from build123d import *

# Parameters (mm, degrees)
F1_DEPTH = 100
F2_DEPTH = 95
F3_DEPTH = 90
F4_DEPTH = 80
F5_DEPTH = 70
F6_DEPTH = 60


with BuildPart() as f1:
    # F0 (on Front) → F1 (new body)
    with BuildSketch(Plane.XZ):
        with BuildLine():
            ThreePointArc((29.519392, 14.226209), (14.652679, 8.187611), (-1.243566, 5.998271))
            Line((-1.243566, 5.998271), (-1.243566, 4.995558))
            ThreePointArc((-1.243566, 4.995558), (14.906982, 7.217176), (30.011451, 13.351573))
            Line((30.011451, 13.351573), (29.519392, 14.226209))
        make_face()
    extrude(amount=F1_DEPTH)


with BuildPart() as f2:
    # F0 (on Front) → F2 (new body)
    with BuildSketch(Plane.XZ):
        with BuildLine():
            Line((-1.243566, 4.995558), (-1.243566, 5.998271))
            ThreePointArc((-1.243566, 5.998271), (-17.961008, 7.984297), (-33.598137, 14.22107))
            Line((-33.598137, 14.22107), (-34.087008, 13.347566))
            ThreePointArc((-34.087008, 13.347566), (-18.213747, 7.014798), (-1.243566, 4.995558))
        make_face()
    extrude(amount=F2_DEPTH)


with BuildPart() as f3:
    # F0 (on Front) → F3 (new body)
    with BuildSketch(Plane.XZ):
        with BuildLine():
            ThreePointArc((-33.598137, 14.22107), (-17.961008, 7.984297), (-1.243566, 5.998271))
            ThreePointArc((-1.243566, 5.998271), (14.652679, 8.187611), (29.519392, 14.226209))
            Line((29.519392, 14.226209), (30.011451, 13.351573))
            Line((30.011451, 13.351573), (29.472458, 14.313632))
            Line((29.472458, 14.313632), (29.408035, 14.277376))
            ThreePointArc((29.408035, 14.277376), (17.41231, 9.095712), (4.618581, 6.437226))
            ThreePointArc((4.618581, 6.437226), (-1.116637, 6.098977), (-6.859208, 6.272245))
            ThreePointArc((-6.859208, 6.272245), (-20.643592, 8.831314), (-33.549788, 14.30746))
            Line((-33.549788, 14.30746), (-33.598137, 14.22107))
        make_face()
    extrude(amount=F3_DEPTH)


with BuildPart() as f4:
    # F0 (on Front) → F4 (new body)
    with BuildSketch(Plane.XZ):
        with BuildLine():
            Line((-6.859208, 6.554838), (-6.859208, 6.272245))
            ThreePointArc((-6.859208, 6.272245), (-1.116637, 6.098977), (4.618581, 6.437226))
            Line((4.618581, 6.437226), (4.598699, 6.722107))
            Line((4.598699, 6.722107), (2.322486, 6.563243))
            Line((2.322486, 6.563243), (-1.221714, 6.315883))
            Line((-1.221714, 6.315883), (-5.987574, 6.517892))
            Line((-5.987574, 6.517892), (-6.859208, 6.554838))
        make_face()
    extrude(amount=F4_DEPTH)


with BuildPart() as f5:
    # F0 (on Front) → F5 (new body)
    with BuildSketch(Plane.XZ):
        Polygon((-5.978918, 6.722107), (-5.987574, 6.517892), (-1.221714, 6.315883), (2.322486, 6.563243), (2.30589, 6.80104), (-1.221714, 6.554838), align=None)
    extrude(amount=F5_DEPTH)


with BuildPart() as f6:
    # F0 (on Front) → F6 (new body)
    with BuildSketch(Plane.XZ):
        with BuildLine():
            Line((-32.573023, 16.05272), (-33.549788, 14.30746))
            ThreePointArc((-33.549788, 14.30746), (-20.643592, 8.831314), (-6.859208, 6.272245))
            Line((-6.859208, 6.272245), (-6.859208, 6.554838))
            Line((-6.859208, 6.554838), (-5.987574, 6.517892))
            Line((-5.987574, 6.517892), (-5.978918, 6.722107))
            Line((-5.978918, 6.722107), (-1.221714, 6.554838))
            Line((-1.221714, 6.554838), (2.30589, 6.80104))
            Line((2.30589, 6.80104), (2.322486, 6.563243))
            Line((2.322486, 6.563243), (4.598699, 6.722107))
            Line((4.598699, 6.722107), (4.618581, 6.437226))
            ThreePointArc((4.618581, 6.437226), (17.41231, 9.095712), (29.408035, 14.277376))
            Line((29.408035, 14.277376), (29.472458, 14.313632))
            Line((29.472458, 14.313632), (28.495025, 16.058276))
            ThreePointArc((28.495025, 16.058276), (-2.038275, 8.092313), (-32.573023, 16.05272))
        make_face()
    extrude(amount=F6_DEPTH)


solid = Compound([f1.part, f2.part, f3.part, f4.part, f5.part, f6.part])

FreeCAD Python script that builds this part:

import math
import FreeCAD as App
import Part
import Sketcher

doc = App.newDocument("Part")
params = doc.addObject("Spreadsheet::Sheet", "Params")
for row, (alias, value) in enumerate([
    ("pad1_length", "100 mm"),
    ("pad2_length", "95 mm"),
    ("pad3_length", "90 mm"),
    ("pad4_length", "80 mm"),
    ("pad5_length", "70 mm"),
    ("sketch6_length", "2.000001 mm"),
    ("pad6_length", "60 mm"),
], start=1):
    params.set(f"A{row}", alias)
    params.set(f"B{row}", "=" + value)
    params.setAlias(f"B{row}", alias)

body = doc.addObject("PartDesign::Body", "Body")

# Sketch on XZ plane
sketch1 = body.newObject("Sketcher::SketchObject", "Sketch")
sketch1.AttachmentSupport = (doc.getObject("XZ_Plane"), [""])
sketch1.MapMode = "FlatFace"
sketch1.addGeometry([
    Part.ArcOfCircle(Part.Circle(App.Vector(-2, 70.6, 0), App.Vector(0, 0, 1), 64.6), math.radians(-89), math.radians(-61)),
    Part.LineSegment(App.Vector(-1.2, 6, 0), App.Vector(-1.2, 5, 0)),
    Part.ArcOfCircle(Part.Circle(App.Vector(-2, 70.6, 0), App.Vector(0, 0, 1), 65.6), math.radians(-89), math.radians(-61)),
    Part.LineSegment(App.Vector(30, 13.4, 0), App.Vector(29.5, 14.2, 0)),
], False)
sketch1.addConstraint([
    Sketcher.Constraint("Coincident", 0, 1, 1, 1),
    Sketcher.Constraint("Coincident", 1, 2, 2, 1),
    Sketcher.Constraint("Coincident", 2, 2, 3, 1),
    Sketcher.Constraint("Coincident", 3, 2, 0, 2),
    Sketcher.Constraint("Vertical", 1),
    Sketcher.Constraint("Radius", 0, 64.620379),
    Sketcher.Constraint("Radius", 2, 65.620412),
    Sketcher.Constraint("DistanceY", 0, 1, 2, 2, 7.353302),
    Sketcher.Constraint("Distance", 3, 1.003549),
    Sketcher.Constraint("DistanceY", 1, 2, 1, 1, 1.002713),
    Sketcher.Constraint("DistanceX", 2, 3, -1, 1, 2.041361),
    Sketcher.Constraint("DistanceY", -1, 1, 2, 3, 70.61112),
    Sketcher.Constraint("DistanceY", -1, 1, 0, 1, 5.998271),
    Sketcher.Constraint("DistanceX", -1, 1, 3, 2, 29.519392),
])
pad1 = body.newObject("PartDesign::Pad", "Pad")
pad1.Profile = sketch1
pad1.setExpression("Length", "Params.pad1_length")
body2 = doc.addObject("PartDesign::Body", "Body001")

# Sketch on XZ plane
sketch2 = body2.newObject("Sketcher::SketchObject", "Sketch001")
sketch2.AttachmentSupport = (doc.getObject("XZ_Plane001"), [""])
sketch2.MapMode = "FlatFace"
sketch2.addGeometry([
    Part.LineSegment(App.Vector(-1.2, 5, 0), App.Vector(-1.2, 6, 0)),
    Part.ArcOfCircle(Part.Circle(App.Vector(-2, 70.6, 0), App.Vector(0, 0, 1), 64.6), math.radians(-119), math.radians(-89)),
    Part.LineSegment(App.Vector(-33.6, 14.2, 0), App.Vector(-34.1, 13.3, 0)),
    Part.ArcOfCircle(Part.Circle(App.Vector(-2, 70.6, 0), App.Vector(0, 0, 1), 65.6), math.radians(-119), math.radians(-89)),
], False)
sketch2.addConstraint([
    Sketcher.Constraint("Coincident", 0, 2, 1, 2),
    Sketcher.Constraint("Coincident", 1, 1, 2, 1),
    Sketcher.Constraint("Coincident", 2, 2, 3, 1),
    Sketcher.Constraint("Coincident", 3, 2, 0, 1),
    Sketcher.Constraint("Vertical", 0),
    Sketcher.Constraint("Radius", 1, 64.620391),
    Sketcher.Constraint("Radius", 3, 65.620419),
    Sketcher.Constraint("Distance", 2, 1.001002),
    Sketcher.Constraint("DistanceX", 1, 3, 0, 2, 0.800401),
    Sketcher.Constraint("DistanceY", 0, 2, 1, 1, 8.222799),
    Sketcher.Constraint("DistanceY", 0, 1, 0, 2, 1.002713),
    Sketcher.Constraint("DistanceY", -1, 1, 0, 2, 5.998271),
    Sketcher.Constraint("DistanceX", 2, 2, 1, 1, 0.488871),
    Sketcher.Constraint("DistanceX", 1, 3, -1, 1, 2.043967),
])
pad2 = body2.newObject("PartDesign::Pad", "Pad001")
pad2.Profile = sketch2
pad2.setExpression("Length", "Params.pad2_length")
body3 = doc.addObject("PartDesign::Body", "Body002")

# Sketch on XZ plane
sketch3 = body3.newObject("Sketcher::SketchObject", "Sketch002")
sketch3.AttachmentSupport = (doc.getObject("XZ_Plane002"), [""])
sketch3.MapMode = "FlatFace"
sketch3.addGeometry([
    Part.ArcOfCircle(Part.Circle(App.Vector(-2.04, 70.61, 0), App.Vector(0, 0, 1), 64.62), math.radians(-119), math.radians(-89)),  # 0
    Part.ArcOfCircle(Part.Circle(App.Vector(-2.04, 70.61, 0), App.Vector(0, 0, 1), 64.62), math.radians(-89), math.radians(-61)),  # 1
    Part.LineSegment(App.Vector(29.52, 14.23, 0), App.Vector(30.01, 13.35, 0)),  # 2
    Part.LineSegment(App.Vector(30.01, 13.35, 0), App.Vector(29.47, 14.31, 0)),  # 3
    Part.LineSegment(App.Vector(29.47, 14.31, 0), App.Vector(29.41, 14.28, 0)),  # 4
    Part.ArcOfCircle(Part.Circle(App.Vector(-2.04, 70.61, 0), App.Vector(0, 0, 1), 64.52), math.radians(-84), math.radians(-61)),  # 5
    Part.ArcOfCircle(Part.Circle(App.Vector(-2.04, 70.61, 0), App.Vector(0, 0, 1), 64.52), math.radians(-94.28), math.radians(-84.07)),  # 6
    Part.ArcOfCircle(Part.Circle(App.Vector(-2.04, 70.61, 0), App.Vector(0, 0, 1), 64.52), math.radians(-119), math.radians(-94)),  # 7
    Part.LineSegment(App.Vector(-33.55, 14.31, 0), App.Vector(-33.6, 14.22, 0)),  # 8
], False)
sketch3.addConstraint([
    Sketcher.Constraint("Tangent", 0, 2, 1, 1),
    Sketcher.Constraint("Coincident", 1, 2, 2, 1),
    Sketcher.Constraint("Coincident", 2, 2, 3, 1),
    Sketcher.Constraint("Coincident", 3, 2, 4, 1),
    Sketcher.Constraint("Coincident", 4, 2, 5, 2),
    Sketcher.Constraint("Tangent", 5, 1, 6, 2),
    Sketcher.Constraint("Tangent", 6, 1, 7, 2),
    Sketcher.Constraint("Coincident", 7, 1, 8, 1),
    Sketcher.Constraint("Coincident", 8, 2, 0, 1),
    Sketcher.Constraint("Vertical", 0, 3, 6, 3),
    Sketcher.Constraint("Radius", 5, 64.521401),
    Sketcher.Constraint("Radius", 0, 64.620391),
    Sketcher.Constraint("Radius", 1, 64.620379),
    Sketcher.Constraint("Radius", 6, 64.521279),
    Sketcher.Constraint("Radius", 7, 64.521428),
    Sketcher.Constraint("Distance", 8, 0.098999),
    Sketcher.Constraint("DistanceX", 6, 3, 4, 2, 31.452001),
    Sketcher.Constraint("DistanceX", 6, 3, 0, 2, 0.8004),
    Sketcher.Constraint("DistanceX", 6, 1, 1, 2, 36.3786),
    Sketcher.Constraint("DistanceY", 0, 2, 8, 2, 8.222799),
    Sketcher.Constraint("Distance", 2, 1.003549),
    Sketcher.Constraint("DistanceY", -1, 1, 6, 3, 70.613591),
    Sketcher.Constraint("DistanceX", -1, 1, 1, 2, 29.519392),
    Sketcher.Constraint("DistanceY", -1, 1, 1, 2, 14.226209),
    Sketcher.Constraint("DistanceX", -1, 1, 2, 2, 30.011451),
    Sketcher.Constraint("DistanceX", -1, 1, 5, 1, 4.618581),
    Sketcher.Constraint("DistanceX", 7, 1, -1, 1, 33.549788),
    Sketcher.Constraint("DistanceY", 2, 2, 3, 2, 0.962059),
    Sketcher.Constraint("Distance", 3, 1.102756),
])
pad3 = body3.newObject("PartDesign::Pad", "Pad002")
pad3.Profile = sketch3
pad3.setExpression("Length", "Params.pad3_length")
body4 = doc.addObject("PartDesign::Body", "Body003")

# Sketch on XZ plane
sketch4 = body4.newObject("Sketcher::SketchObject", "Sketch003")
sketch4.AttachmentSupport = (doc.getObject("XZ_Plane003"), [""])
sketch4.MapMode = "FlatFace"
sketch4.addGeometry([
    Part.LineSegment(App.Vector(-6.859208, 6.554838, 0), App.Vector(-6.859208, 6.272245, 0)),  # 0
    Part.ArcOfCircle(Part.Circle(App.Vector(-2.043966, 70.613591, 0), App.Vector(0, 0, 1), 64.521279), math.radians(-94.27998), math.radians(-84.073002)),  # 1
    Part.LineSegment(App.Vector(4.618581, 6.437226, 0), App.Vector(4.598699, 6.722107, 0)),  # 2
    Part.LineSegment(App.Vector(4.598699, 6.722107, 0), App.Vector(2.322486, 6.563243, 0)),  # 3
    Part.LineSegment(App.Vector(2.322486, 6.563243, 0), App.Vector(-1.221714, 6.315883, 0)),  # 4
    Part.LineSegment(App.Vector(-1.221714, 6.315883, 0), App.Vector(-5.987574, 6.517892, 0)),  # 5
    Part.LineSegment(App.Vector(-5.987574, 6.517892, 0), App.Vector(-6.859208, 6.554838, 0)),  # 6
], False)
sketch4.addConstraint([
    Sketcher.Constraint("Coincident", 0, 2, 1, 1),
    Sketcher.Constraint("Coincident", 1, 2, 2, 1),
    Sketcher.Constraint("Coincident", 2, 2, 3, 1),
    Sketcher.Constraint("Coincident", 3, 2, 4, 1),
    Sketcher.Constraint("Coincident", 4, 2, 5, 1),
    Sketcher.Constraint("Coincident", 5, 2, 6, 1),
    Sketcher.Constraint("Coincident", 6, 2, 0, 1),
    Sketcher.Constraint("Vertical", 0),
    Sketcher.Constraint("Radius", 1, 64.521279),
    Sketcher.Constraint("DistanceY", 0, 2, 3, 2, 0.290998),
    Sketcher.Constraint("DistanceX", -1, 1, 2, 2, 4.598699),
    Sketcher.Constraint("DistanceX", 4, 2, 3, 2, 3.5442),
    Sketcher.Constraint("Distance", 3, 2.28175),
    Sketcher.Constraint("Distance", 4, 3.552821),
    Sketcher.Constraint("Distance", 5, 4.770139),
    Sketcher.Constraint("DistanceY", 0, 2, 0, 1, 0.282593),
    Sketcher.Constraint("DistanceY", -1, 1, 1, 3, 70.613591),
    Sketcher.Constraint("DistanceX", -1, 1, 1, 2, 4.618581),
    Sketcher.Constraint("DistanceY", -1, 1, 5, 2, 6.517892),
    Sketcher.Constraint("DistanceX", 0, 2, 1, 3, 4.815242),
    Sketcher.Constraint("DistanceX", 0, 2, 1, 2, 11.477789),
    Sketcher.Constraint("DistanceY", 1, 2, 2, 2, 0.284881),
])
pad4 = body4.newObject("PartDesign::Pad", "Pad003")
pad4.Profile = sketch4
pad4.setExpression("Length", "Params.pad4_length")
body5 = doc.addObject("PartDesign::Body", "Body004")

# Sketch on XZ plane
sketch5 = body5.newObject("Sketcher::SketchObject", "Sketch004")
sketch5.AttachmentSupport = (doc.getObject("XZ_Plane004"), [""])
sketch5.MapMode = "FlatFace"
sketch5.addGeometry([
    Part.LineSegment(App.Vector(-5.98, 6.72, 0), App.Vector(-5.99, 6.52, 0)),  # 0
    Part.LineSegment(App.Vector(-5.99, 6.52, 0), App.Vector(-1.22, 6.32, 0)),  # 1
    Part.LineSegment(App.Vector(-1.22, 6.32, 0), App.Vector(2.32, 6.56, 0)),  # 2
    Part.LineSegment(App.Vector(2.32, 6.56, 0), App.Vector(2.31, 6.8, 0)),  # 3
    Part.LineSegment(App.Vector(2.31, 6.8, 0), App.Vector(-1.22, 6.55, 0)),  # 4
    Part.LineSegment(App.Vector(-1.22, 6.55, 0), App.Vector(-5.98, 6.72, 0)),  # 5
], False)
sketch5.addConstraint([
    Sketcher.Constraint("Coincident", 0, 2, 1, 1),
    Sketcher.Constraint("Coincident", 1, 2, 2, 1),
    Sketcher.Constraint("Coincident", 2, 2, 3, 1),
    Sketcher.Constraint("Coincident", 3, 2, 4, 1),
    Sketcher.Constraint("Coincident", 4, 2, 5, 1),
    Sketcher.Constraint("Coincident", 5, 2, 0, 1),
    Sketcher.Constraint("Perpendicular", 0, 1),
    Sketcher.Constraint("Parallel", 2, 4),
    Sketcher.Constraint("Vertical", 1, 2, 4, 2),
    Sketcher.Constraint("Distance", 0, 0.204398),
    Sketcher.Constraint("DistanceX", 1, 2, 2, 2, 3.5442),
    Sketcher.Constraint("Distance", 1, 4.770139),
    Sketcher.Constraint("Distance", 2, 3.552821),
    Sketcher.Constraint("DistanceY", -1, 1, 0, 2, 6.517892),
    Sketcher.Constraint("DistanceX", -1, 1, 3, 2, 2.30589),
    Sketcher.Constraint("DistanceY", -1, 1, 3, 2, 6.80104),
    Sketcher.Constraint("DistanceX", 5, 2, -1, 1, 5.978918),
    Sketcher.Constraint("DistanceX", 0, 2, 1, 2, 4.76586),
])
pad5 = body5.newObject("PartDesign::Pad", "Pad004")
pad5.Profile = sketch5
pad5.setExpression("Length", "Params.pad5_length")
body6 = doc.addObject("PartDesign::Body", "Body005")

# Sketch on XZ plane
sketch6 = body6.newObject("Sketcher::SketchObject", "Sketch005")
sketch6.AttachmentSupport = (doc.getObject("XZ_Plane005"), [""])
sketch6.MapMode = "FlatFace"
sketch6.addGeometry([
    Part.LineSegment(App.Vector(-32.57, 16.05, 0), App.Vector(-33.55, 14.31, 0)),  # 0
    Part.ArcOfCircle(Part.Circle(App.Vector(-2.04, 70.61, 0), App.Vector(0, 0, 1), 64.52), math.radians(-119), math.radians(-94)),  # 1
    Part.LineSegment(App.Vector(-6.86, 6.27, 0), App.Vector(-6.86, 6.55, 0)),  # 2
    Part.LineSegment(App.Vector(-6.86, 6.55, 0), App.Vector(-5.99, 6.52, 0)),  # 3
    Part.LineSegment(App.Vector(-5.99, 6.52, 0), App.Vector(-5.98, 6.72, 0)),  # 4
    Part.LineSegment(App.Vector(-5.98, 6.72, 0), App.Vector(-1.22, 6.55, 0)),  # 5
    Part.LineSegment(App.Vector(-1.22, 6.55, 0), App.Vector(2.31, 6.8, 0)),  # 6
    Part.LineSegment(App.Vector(2.31, 6.8, 0), App.Vector(2.32, 6.56, 0)),  # 7
    Part.LineSegment(App.Vector(2.32, 6.56, 0), App.Vector(4.6, 6.72, 0)),  # 8
    Part.LineSegment(App.Vector(4.6, 6.72, 0), App.Vector(4.62, 6.44, 0)),  # 9
    Part.ArcOfCircle(Part.Circle(App.Vector(-2.04, 70.61, 0), App.Vector(0, 0, 1), 64.52), math.radians(-84), math.radians(-61)),  # 10
    Part.LineSegment(App.Vector(29.41, 14.28, 0), App.Vector(29.47, 14.31, 0)),  # 11
    Part.LineSegment(App.Vector(29.47, 14.31, 0), App.Vector(28.5, 16.06, 0)),  # 12
    Part.ArcOfCircle(Part.Circle(App.Vector(-2.04, 70.61, 0), App.Vector(0, 0, 1), 62.52), math.radians(-119), math.radians(-61)),  # 13
], False)
sketch6.addConstraint([
    Sketcher.Constraint("Coincident", 0, 2, 1, 1),
    Sketcher.Constraint("Coincident", 1, 2, 2, 1),
    Sketcher.Constraint("Coincident", 2, 2, 3, 1),
    Sketcher.Constraint("Coincident", 3, 2, 4, 1),
    Sketcher.Constraint("Coincident", 4, 2, 5, 1),
    Sketcher.Constraint("Coincident", 5, 2, 6, 1),
    Sketcher.Constraint("Coincident", 6, 2, 7, 1),
    Sketcher.Constraint("Coincident", 7, 2, 8, 1),
    Sketcher.Constraint("Coincident", 8, 2, 9, 1),
    Sketcher.Constraint("Coincident", 9, 2, 10, 1),
    Sketcher.Constraint("Coincident", 10, 2, 11, 1),
    Sketcher.Constraint("Coincident", 11, 2, 12, 1),
    Sketcher.Constraint("Coincident", 12, 2, 13, 2),
    Sketcher.Constraint("Coincident", 13, 1, 0, 1),
    Sketcher.Constraint("Vertical", 2),
    Sketcher.Constraint("Coincident", 13, 3, 10, 3),
    Sketcher.Constraint("Perpendicular", 3, 4),
    Sketcher.Constraint("Parallel", 6, 8),
    Sketcher.Constraint("Parallel", 7, 9),
    Sketcher.Constraint("Horizontal", 2, 2, 5, 2),
    Sketcher.Constraint("Horizontal", 4, 2, 8, 2),
    Sketcher.Constraint("Distance", 0, 2.000001),
    Sketcher.Constraint("Radius", 10, 64.521401),
    Sketcher.Constraint("Radius", 13, 62.521399),
    Sketcher.Constraint("Radius", 1, 64.521428),
    Sketcher.Constraint("Distance", 4, 0.204398),
    Sketcher.Constraint("DistanceX", -1, 1, 8, 2, 4.598699),
    Sketcher.Constraint("DistanceX", 1, 2, 6, 2, 9.165098),
    Sketcher.Constraint("DistanceX", 5, 2, 7, 2, 3.5442),
    Sketcher.Constraint("DistanceX", 4, 2, 9, 2, 10.597499),
    Sketcher.Constraint("DistanceY", 10, 2, 12, 2, 1.7809),
    Sketcher.Constraint("Distance", 8, 2.28175),
    Sketcher.Constraint("Distance", 12, 1.999789),
    Sketcher.Constraint("DistanceY", 2, 1, 2, 2, 0.282593),
    Sketcher.Constraint("DistanceY", -1, 1, 1, 3, 70.613741),
    Sketcher.Constraint("DistanceY", -1, 1, 0, 2, 14.30746),
    Sketcher.Constraint("DistanceX", 1, 2, -1, 1, 6.859208),
    Sketcher.Constraint("DistanceY", -1, 1, 3, 2, 6.517892),
    Sketcher.Constraint("DistanceX", 4, 2, -1, 1, 5.978918),
    Sketcher.Constraint("DistanceY", -1, 1, 6, 2, 6.80104),
    Sketcher.Constraint("DistanceY", -1, 1, 13, 1, 16.05272),
    Sketcher.Constraint("DistanceX", 0, 2, 1, 2, 26.69058),
    Sketcher.Constraint("DistanceY", 8, 2, 10, 2, 7.555269),
    Sketcher.Constraint("DistanceX", 8, 2, 11, 2, 24.873759),
])
sketch6.setExpression("Constraints[21]", "Params.sketch6_length")
pad6 = body6.newObject("PartDesign::Pad", "Pad005")
pad6.Profile = sketch6
pad6.setExpression("Length", "Params.pad6_length")

doc.recompute()
